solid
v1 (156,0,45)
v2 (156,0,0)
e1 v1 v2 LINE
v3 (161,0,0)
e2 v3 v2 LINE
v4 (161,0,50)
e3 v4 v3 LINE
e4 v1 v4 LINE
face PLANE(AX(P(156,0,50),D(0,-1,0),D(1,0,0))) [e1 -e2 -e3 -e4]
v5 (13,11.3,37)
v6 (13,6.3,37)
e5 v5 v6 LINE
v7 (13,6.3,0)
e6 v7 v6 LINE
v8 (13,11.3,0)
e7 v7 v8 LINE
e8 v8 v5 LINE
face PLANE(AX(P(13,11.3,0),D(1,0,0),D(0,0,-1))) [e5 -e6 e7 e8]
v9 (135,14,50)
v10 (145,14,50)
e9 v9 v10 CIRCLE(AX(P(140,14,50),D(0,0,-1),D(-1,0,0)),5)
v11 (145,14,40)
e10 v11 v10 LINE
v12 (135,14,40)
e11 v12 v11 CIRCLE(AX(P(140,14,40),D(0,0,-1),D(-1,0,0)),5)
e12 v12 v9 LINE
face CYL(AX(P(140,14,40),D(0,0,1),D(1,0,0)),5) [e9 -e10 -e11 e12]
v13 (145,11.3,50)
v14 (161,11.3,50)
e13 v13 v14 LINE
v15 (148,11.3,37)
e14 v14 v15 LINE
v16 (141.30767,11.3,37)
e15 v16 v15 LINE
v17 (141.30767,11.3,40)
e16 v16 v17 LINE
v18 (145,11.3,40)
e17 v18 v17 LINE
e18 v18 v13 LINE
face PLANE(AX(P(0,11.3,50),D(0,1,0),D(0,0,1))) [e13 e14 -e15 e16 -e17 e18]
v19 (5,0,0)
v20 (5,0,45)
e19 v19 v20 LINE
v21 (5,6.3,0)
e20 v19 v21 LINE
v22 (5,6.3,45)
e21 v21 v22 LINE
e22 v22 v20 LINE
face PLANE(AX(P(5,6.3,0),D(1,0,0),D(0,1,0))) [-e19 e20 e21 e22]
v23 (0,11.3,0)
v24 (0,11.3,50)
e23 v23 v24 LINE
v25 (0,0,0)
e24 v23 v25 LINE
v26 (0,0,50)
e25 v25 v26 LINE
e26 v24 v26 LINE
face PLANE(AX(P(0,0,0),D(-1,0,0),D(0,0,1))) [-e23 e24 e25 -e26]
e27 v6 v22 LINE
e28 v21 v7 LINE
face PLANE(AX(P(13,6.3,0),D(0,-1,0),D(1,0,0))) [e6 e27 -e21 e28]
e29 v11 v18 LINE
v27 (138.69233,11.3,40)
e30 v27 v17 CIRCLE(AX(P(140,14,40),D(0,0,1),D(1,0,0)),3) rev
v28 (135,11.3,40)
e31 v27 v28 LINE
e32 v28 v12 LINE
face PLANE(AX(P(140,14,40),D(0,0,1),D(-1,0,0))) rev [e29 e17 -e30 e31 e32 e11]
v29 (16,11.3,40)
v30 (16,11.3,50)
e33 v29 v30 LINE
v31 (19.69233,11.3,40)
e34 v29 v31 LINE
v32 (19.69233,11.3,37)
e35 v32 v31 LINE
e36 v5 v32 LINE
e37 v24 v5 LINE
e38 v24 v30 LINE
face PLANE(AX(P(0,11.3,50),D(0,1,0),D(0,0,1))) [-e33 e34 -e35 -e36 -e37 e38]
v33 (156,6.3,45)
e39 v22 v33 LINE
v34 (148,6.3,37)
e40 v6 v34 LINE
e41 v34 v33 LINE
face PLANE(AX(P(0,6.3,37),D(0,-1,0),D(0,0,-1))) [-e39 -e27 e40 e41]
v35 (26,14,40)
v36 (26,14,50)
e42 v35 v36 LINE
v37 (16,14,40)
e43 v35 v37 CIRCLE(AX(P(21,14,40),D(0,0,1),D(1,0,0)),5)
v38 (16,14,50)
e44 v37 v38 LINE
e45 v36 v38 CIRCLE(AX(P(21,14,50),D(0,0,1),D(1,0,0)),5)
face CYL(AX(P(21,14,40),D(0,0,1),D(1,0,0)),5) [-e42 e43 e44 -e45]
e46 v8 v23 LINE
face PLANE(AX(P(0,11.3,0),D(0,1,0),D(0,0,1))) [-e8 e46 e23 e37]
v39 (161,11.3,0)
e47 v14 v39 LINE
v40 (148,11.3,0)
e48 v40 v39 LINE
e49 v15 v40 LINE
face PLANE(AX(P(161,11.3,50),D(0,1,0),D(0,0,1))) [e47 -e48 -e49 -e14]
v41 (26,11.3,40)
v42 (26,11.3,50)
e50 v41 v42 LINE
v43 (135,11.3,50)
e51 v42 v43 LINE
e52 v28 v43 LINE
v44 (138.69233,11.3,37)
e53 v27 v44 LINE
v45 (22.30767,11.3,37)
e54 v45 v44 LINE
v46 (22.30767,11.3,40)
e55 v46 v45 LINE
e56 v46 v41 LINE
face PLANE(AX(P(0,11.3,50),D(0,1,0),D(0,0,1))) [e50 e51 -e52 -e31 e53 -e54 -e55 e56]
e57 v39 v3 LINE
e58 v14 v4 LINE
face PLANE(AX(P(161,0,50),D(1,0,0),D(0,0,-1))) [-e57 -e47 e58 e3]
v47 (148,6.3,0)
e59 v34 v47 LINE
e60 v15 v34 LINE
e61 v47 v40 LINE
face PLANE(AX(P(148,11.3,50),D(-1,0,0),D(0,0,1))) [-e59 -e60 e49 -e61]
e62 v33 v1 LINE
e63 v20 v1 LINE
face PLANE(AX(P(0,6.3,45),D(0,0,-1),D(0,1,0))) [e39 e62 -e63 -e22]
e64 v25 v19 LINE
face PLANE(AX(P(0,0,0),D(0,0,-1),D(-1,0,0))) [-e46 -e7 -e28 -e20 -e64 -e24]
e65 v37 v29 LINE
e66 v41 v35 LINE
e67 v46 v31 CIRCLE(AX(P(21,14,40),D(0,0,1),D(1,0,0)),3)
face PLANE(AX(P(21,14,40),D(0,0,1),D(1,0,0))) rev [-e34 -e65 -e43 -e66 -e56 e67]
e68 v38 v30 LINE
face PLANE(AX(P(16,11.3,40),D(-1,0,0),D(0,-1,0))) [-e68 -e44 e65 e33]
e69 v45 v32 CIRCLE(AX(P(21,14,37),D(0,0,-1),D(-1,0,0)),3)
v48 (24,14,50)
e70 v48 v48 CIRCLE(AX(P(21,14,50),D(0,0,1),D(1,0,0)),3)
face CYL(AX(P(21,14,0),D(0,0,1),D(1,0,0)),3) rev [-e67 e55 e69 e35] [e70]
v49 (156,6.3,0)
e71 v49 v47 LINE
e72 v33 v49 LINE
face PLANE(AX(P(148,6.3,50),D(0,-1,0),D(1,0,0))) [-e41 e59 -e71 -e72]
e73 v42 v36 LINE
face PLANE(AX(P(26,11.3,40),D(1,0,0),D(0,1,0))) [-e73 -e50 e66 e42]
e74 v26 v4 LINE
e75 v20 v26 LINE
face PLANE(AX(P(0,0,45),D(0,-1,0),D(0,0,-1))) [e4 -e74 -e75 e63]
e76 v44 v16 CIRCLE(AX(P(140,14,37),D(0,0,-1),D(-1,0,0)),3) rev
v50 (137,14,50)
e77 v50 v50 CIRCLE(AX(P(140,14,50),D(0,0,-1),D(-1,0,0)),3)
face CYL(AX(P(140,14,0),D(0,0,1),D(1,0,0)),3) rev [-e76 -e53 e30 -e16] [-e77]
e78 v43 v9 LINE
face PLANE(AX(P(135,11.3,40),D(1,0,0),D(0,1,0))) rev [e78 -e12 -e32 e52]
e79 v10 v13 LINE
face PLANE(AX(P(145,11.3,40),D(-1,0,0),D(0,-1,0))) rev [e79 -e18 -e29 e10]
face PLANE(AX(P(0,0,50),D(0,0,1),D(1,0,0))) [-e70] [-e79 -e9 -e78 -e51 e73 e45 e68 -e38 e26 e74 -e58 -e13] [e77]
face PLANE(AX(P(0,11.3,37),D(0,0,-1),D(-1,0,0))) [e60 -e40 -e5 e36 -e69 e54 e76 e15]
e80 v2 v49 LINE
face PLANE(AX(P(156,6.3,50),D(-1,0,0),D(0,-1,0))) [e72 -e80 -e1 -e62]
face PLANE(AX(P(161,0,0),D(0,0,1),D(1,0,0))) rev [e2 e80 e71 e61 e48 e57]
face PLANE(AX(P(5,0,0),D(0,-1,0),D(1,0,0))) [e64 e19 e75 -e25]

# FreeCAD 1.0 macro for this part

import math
import FreeCAD as App
import Part
import Sketcher
from FreeCAD import Vector

doc = App.newDocument("Part")
params = doc.addObject("Spreadsheet::Sheet", "Params")
for row, (alias, value) in enumerate([
    ("sketch1_width", "5 mm"),
    ("sketch1_width2", "8 mm"),
    ("sketch1_height", "11.3 mm"),
    ("sketch2_width", "161 mm"),
    ("sketch2_height", "50 mm"),
    ("sketch3_radius", "5 mm"),
    ("sketch3_height", "2.7 mm"),
    ("pad1_length", "10 mm"),
    ("sketch4_diameter", "6 mm"),
], start=1):
    params.set(f"A{row}", alias)
    params.set(f"B{row}", "=" + value)
    params.setAlias(f"B{row}", alias)

body = doc.addObject("PartDesign::Body", "Body")

sketch1 = doc.addObject("Sketcher::SketchObject", "Sketch")
body.addObject(sketch1)
sketch1.AttachmentSupport = (doc.XY_Plane, [""])
sketch1.MapMode = "FlatFace"
sketch1.addGeometry([
    Part.LineSegment(Vector(0, 11, 0), Vector(0, 0, 0)),
    Part.LineSegment(Vector(0, 0, 0), Vector(5, 0, 0)),
    Part.LineSegment(Vector(5, 0, 0), Vector(5, 6, 0)),
    Part.LineSegment(Vector(5, 6, 0), Vector(13, 6, 0)),
    Part.LineSegment(Vector(13, 6, 0), Vector(13, 11, 0)),
    Part.LineSegment(Vector(13, 11, 0), Vector(0, 11, 0)),
], False)
sketch1.addConstraint([
    Sketcher.Constraint("Coincident", 0, 2, 1, 1),
    Sketcher.Constraint("Coincident", 1, 2, 2, 1),
    Sketcher.Constraint("Coincident", 2, 2, 3, 1),
    Sketcher.Constraint("Coincident", 3, 2, 4, 1),
    Sketcher.Constraint("Coincident", 4, 2, 5, 1),
    Sketcher.Constraint("Coincident", 5, 2, 0, 1),
    Sketcher.Constraint("Vertical", 0),
    Sketcher.Constraint("Horizontal", 1),
    Sketcher.Constraint("Vertical", 2),
    Sketcher.Constraint("Horizontal", 3),
    Sketcher.Constraint("Vertical", 4),
    Sketcher.Constraint("Horizontal", 5),
    Sketcher.Constraint("Coincident", 0, 2, -1, 1),
    Sketcher.Constraint("Equal", 1, 4),
    Sketcher.Constraint("DistanceX", 1, 1, 1, 2, 5.0),
    Sketcher.Constraint("DistanceX", 3, 1, 3, 2, 8.0),
    Sketcher.Constraint("DistanceY", 0, 2, 0, 1, 11.3),
])
sketch1.setExpression("Constraints[14]", "Params.sketch1_width")
sketch1.setExpression("Constraints[15]", "Params.sketch1_width2")
sketch1.setExpression("Constraints[16]", "Params.sketch1_height")

sketch2 = doc.addObject("Sketcher::SketchObject", "Sketch001")
body.addObject(sketch2)
sketch2.AttachmentSupport = (doc.XZ_Plane, [""])
sketch2.MapMode = "FlatFace"
sketch2.addGeometry([
    Part.LineSegment(Vector(0, 0, 0), Vector(0, 50, 0)),
    Part.LineSegment(Vector(0, 50, 0), Vector(161, 50, 0)),
    Part.LineSegment(Vector(161, 50, 0), Vector(161, 0, 0)),
], False)
sketch2.addConstraint([
    Sketcher.Constraint("Coincident", 0, 2, 1, 1),
    Sketcher.Constraint("Coincident", 1, 2, 2, 1),
    Sketcher.Constraint("Vertical", 0),
    Sketcher.Constraint("Horizontal", 1),
    Sketcher.Constraint("Vertical", 2),
    Sketcher.Constraint("Coincident", 0, 1, -1, 1),
    Sketcher.Constraint("PointOnObject", 2, 2, -1),
    Sketcher.Constraint("DistanceX", 1, 1, 1, 2, 161.0),
    Sketcher.Constraint("DistanceY", 0, 1, 0, 2, 50.0),
])
sketch2.setExpression("Constraints[7]", "Params.sketch2_width")
sketch2.setExpression("Constraints[8]", "Params.sketch2_height")
doc.recompute()

additivepipe = doc.addObject("PartDesign::AdditivePipe", "AdditivePipe")
body.addObject(additivepipe)
additivepipe.Profile = sketch1
additivepipe.Spine = (sketch2, ["Edge1", "Edge2", "Edge3"])
additivepipe.Transition = "Right corner"

sketch3 = doc.addObject("Sketcher::SketchObject", "Sketch002")
body.addObject(sketch3)
sketch3.AttachmentSupport = (doc.XY_Plane, [""])
sketch3.MapMode = "FlatFace"
sketch3.AttachmentOffset = App.Placement(Vector(0, 0, 50), App.Rotation())
sketch3.addGeometry([
    Part.LineSegment(Vector(16, 11.3, 0), Vector(26, 11.3, 0)),
    Part.LineSegment(Vector(26, 11.3, 0), Vector(26, 14, 0)),
    Part.ArcOfCircle(Part.Circle(Vector(21, 14, 0), Vector(0, 0, 1), 5), math.radians(0), math.radians(180)),
    Part.LineSegment(Vector(16, 14, 0), Vector(16, 11.3, 0)),
], False)
sketch3.addConstraint([
    Sketcher.Constraint("Coincident", 0, 2, 1, 1),
    Sketcher.Constraint("Tangent", 1, 2, 2, 1),
    Sketcher.Constraint("Tangent", 2, 2, 3, 1),
    Sketcher.Constraint("Coincident", 3, 2, 0, 1),
    Sketcher.Constraint("Horizontal", 0),
    Sketcher.Constraint("Vertical", 1),
    Sketcher.Constraint("Vertical", 3),
    Sketcher.Constraint("Radius", 2, 5.0),
    Sketcher.Constraint("DistanceY", 1, 1, 1, 2, 2.7),
    Sketcher.Constraint("DistanceX", -1, 1, 2, 3, 21.0),
    Sketcher.Constraint("DistanceY", -1, 1, 2, 3, 14.0),
])
sketch3.setExpression("Constraints[7]", "Params.sketch3_radius")
sketch3.setExpression("Constraints[8]", "Params.sketch3_height")
pad1 = doc.addObject("PartDesign::Pad", "Pad")
body.addObject(pad1)
pad1.Profile = sketch3
pad1.setExpression("Length", "Params.pad1_length")
pad1.Reversed = True

sketch4 = doc.addObject("Sketcher::SketchObject", "Sketch003")
body.addObject(sketch4)
sketch4.AttachmentSupport = (doc.XY_Plane, [""])
sketch4.MapMode = "FlatFace"
sketch4.AttachmentOffset = App.Placement(Vector(0, 0, 50), App.Rotation())
sketch4.addGeometry(Part.Circle(Vector(21, 14, 0), Vector(0, 0, 1), 3), False)
sketch4.addConstraint([
    Sketcher.Constraint("Diameter", 0, 6.0),
    Sketcher.Constraint("DistanceX", -1, 1, 0, 3, 21.0),
    Sketcher.Constraint("DistanceY", -1, 1, 0, 3, 14.0),
])
sketch4.setExpression("Constraints[0]", "Params.sketch4_diameter")
pocket1 = doc.addObject("PartDesign::Pocket", "Pocket")
body.addObject(pocket1)
pocket1.Profile = sketch4
pocket1.Type = "ThroughAll"
doc.recompute()

datumplane = doc.addObject("PartDesign::Plane", "DatumPlane")
body.addObject(datumplane)
datumplane.AttachmentSupport = (doc.YZ_Plane, [""])
datumplane.MapMode = "FlatFace"
datumplane.AttachmentOffset = App.Placement(Vector(0, 0, 80.5), App.Rotation())
mirrored = doc.addObject("PartDesign::Mirrored", "Mirrored")
body.addObject(mirrored)
mirrored.Originals = [pad1, pocket1]
mirrored.MirrorPlane = (datumplane, [""])
body.Tip = mirrored

doc.recompute()
